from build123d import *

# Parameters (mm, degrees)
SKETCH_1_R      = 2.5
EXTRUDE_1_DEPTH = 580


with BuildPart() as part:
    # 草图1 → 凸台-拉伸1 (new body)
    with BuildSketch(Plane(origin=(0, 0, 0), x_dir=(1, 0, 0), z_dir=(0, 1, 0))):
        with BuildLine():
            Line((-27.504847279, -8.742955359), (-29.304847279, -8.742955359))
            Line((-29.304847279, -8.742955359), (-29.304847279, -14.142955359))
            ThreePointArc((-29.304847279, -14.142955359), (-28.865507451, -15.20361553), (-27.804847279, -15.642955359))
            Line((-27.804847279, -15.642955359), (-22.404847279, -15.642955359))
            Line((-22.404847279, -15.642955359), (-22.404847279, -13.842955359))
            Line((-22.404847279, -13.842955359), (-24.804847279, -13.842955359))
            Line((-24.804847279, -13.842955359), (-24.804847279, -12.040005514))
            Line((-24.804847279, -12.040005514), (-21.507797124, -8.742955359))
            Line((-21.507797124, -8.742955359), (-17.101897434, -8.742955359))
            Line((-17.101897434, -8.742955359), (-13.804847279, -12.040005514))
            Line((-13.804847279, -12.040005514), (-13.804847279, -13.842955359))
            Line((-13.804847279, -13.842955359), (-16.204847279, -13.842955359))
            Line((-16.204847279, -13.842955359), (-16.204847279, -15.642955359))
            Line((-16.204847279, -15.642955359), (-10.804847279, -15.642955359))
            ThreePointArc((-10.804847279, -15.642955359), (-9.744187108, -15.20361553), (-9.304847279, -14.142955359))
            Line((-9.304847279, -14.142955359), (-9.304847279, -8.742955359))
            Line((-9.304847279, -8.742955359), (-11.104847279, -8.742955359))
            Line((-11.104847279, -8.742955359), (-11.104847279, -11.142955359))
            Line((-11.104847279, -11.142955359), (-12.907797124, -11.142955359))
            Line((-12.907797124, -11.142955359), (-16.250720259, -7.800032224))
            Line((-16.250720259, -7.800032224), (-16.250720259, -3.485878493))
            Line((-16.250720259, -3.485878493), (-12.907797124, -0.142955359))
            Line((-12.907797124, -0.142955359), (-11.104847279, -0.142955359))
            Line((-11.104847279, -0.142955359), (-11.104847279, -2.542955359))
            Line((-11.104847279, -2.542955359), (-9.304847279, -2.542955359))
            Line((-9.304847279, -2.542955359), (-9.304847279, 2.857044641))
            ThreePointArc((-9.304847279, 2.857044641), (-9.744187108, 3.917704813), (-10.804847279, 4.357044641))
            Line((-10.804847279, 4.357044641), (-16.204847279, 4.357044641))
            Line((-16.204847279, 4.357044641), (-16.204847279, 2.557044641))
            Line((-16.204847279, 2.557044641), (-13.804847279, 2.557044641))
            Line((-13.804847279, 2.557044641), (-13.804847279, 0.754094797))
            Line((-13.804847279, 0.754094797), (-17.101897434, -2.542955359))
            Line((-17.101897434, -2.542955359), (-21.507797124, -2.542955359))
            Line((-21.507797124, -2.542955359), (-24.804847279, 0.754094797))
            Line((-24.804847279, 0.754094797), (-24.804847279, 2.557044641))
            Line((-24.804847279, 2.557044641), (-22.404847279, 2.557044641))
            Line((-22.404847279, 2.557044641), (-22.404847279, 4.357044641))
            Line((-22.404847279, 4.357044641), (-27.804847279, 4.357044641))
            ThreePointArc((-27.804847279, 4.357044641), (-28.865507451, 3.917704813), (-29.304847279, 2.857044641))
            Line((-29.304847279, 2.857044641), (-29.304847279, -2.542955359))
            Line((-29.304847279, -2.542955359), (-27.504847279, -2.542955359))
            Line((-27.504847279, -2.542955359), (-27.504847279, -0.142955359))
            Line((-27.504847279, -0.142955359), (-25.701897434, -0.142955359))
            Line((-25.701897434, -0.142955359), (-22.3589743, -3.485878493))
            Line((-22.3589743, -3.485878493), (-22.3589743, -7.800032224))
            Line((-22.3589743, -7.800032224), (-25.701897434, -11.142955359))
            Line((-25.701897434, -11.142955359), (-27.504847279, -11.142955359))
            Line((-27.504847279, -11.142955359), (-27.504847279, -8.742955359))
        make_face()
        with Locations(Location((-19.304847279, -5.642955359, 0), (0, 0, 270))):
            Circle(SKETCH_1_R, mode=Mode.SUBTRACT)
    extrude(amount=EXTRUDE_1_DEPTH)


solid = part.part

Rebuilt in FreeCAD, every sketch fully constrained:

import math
import FreeCAD as App
import Part
import Sketcher

V = App.Vector
Q = App.Units.Quantity

doc = App.newDocument("Part")
params = doc.addObject("Spreadsheet::Sheet", "Params")
for row, (alias, value) in enumerate([
    ("sketch1_diameter", "5 mm"),
    ("sketch1_radius", "1.5 mm"),
    ("sketch1_width", "1.8 mm"),
    ("sketch1_width2", "5.4 mm"),
    ("sketch1_width3", "2.4 mm"),
    ("pad1_length", "580 mm"),
], start=1):
    params.set(f"A{row}", alias)
    params.set(f"B{row}", "=" + value)
    params.setAlias(f"B{row}", alias)

body = doc.addObject("PartDesign::Body", "Body")

sketch1 = body.newObject("Sketcher::SketchObject", "Sketch")
sketch1.AttachmentSupport = (doc.getObject("XZ_Plane"), [""])
sketch1.MapMode = "FlatFace"
sketch1.addGeometry([
    Part.LineSegment(V(-27.5, 8.7, 0), V(-29.3, 8.7, 0)),
    Part.LineSegment(V(-29.3, 8.7, 0), V(-29.3, 14.1, 0)),
    Part.ArcOfCircle(Part.Circle(V(-27.8, 14.1, 0), V(0, 0, 1), 1.5), math.radians(90), math.radians(180)),
    Part.LineSegment(V(-27.8, 15.6, 0), V(-22.4, 15.6, 0)),
    Part.LineSegment(V(-22.4, 15.6, 0), V(-22.4, 13.8, 0)),
    Part.LineSegment(V(-22.4, 13.8, 0), V(-24.8, 13.8, 0)),
    Part.LineSegment(V(-24.8, 13.8, 0), V(-24.8, 12, 0)),
    Part.LineSegment(V(-24.8, 12, 0), V(-21.5, 8.7, 0)),
    Part.LineSegment(V(-21.5, 8.7, 0), V(-17.1, 8.7, 0)),
    Part.LineSegment(V(-17.1, 8.7, 0), V(-13.8, 12, 0)),
    Part.LineSegment(V(-13.8, 12, 0), V(-13.8, 13.8, 0)),
    Part.LineSegment(V(-13.8, 13.8, 0), V(-16.2, 13.8, 0)),
    Part.LineSegment(V(-16.2, 13.8, 0), V(-16.2, 15.6, 0)),
    Part.LineSegment(V(-16.2, 15.6, 0), V(-10.8, 15.6, 0)),
    Part.ArcOfCircle(Part.Circle(V(-10.8, 14.1, 0), V(0, 0, 1), 1.5), math.radians(0), math.radians(90)),
    Part.LineSegment(V(-9.3, 14.1, 0), V(-9.3, 8.7, 0)),
    Part.LineSegment(V(-9.3, 8.7, 0), V(-11.1, 8.7, 0)),
    Part.LineSegment(V(-11.1, 8.7, 0), V(-11.1, 11.1, 0)),
    Part.LineSegment(V(-11.1, 11.1, 0), V(-12.9, 11.1, 0)),
    Part.LineSegment(V(-12.9, 11.1, 0), V(-16.3, 7.8, 0)),
    Part.LineSegment(V(-16.3, 7.8, 0), V(-16.3, 3.5, 0)),
    Part.LineSegment(V(-16.3, 3.5, 0), V(-12.9, 0.1, 0)),
    Part.LineSegment(V(-12.9, 0.1, 0), V(-11.1, 0.1, 0)),
    Part.LineSegment(V(-11.1, 0.1, 0), V(-11.1, 2.5, 0)),
    Part.LineSegment(V(-11.1, 2.5, 0), V(-9.3, 2.5, 0)),
    Part.LineSegment(V(-9.3, 2.5, 0), V(-9.3, -2.9, 0)),
    Part.ArcOfCircle(Part.Circle(V(-10.8, -2.9, 0), V(0, 0, 1), 1.5), math.radians(-90), math.radians(0)),
    Part.LineSegment(V(-10.8, -4.4, 0), V(-16.2, -4.4, 0)),
    Part.LineSegment(V(-16.2, -4.4, 0), V(-16.2, -2.6, 0)),
    Part.LineSegment(V(-16.2, -2.6, 0), V(-13.8, -2.6, 0)),
    Part.LineSegment(V(-13.8, -2.6, 0), V(-13.8, -0.8, 0)),
    Part.LineSegment(V(-13.8, -0.8, 0), V(-17.1, 2.5, 0)),
    Part.LineSegment(V(-17.1, 2.5, 0), V(-21.5, 2.5, 0)),
    Part.LineSegment(V(-21.5, 2.5, 0), V(-24.8, -0.8, 0)),
    Part.LineSegment(V(-24.8, -0.8, 0), V(-24.8, -2.6, 0)),
    Part.LineSegment(V(-24.8, -2.6, 0), V(-22.4, -2.6, 0)),
    Part.LineSegment(V(-22.4, -2.6, 0), V(-22.4, -4.4, 0)),
    Part.LineSegment(V(-22.4, -4.4, 0), V(-27.8, -4.4, 0)),
    Part.ArcOfCircle(Part.Circle(V(-27.8, -2.9, 0), V(0, 0, 1), 1.5), math.radians(180), math.radians(270)),
    Part.LineSegment(V(-29.3, -2.9, 0), V(-29.3, 2.5, 0)),
    Part.LineSegment(V(-29.3, 2.5, 0), V(-27.5, 2.5, 0)),
    Part.LineSegment(V(-27.5, 2.5, 0), V(-27.5, 0.1, 0)),
    Part.LineSegment(V(-27.5, 0.1, 0), V(-25.7, 0.1, 0)),
    Part.LineSegment(V(-25.7, 0.1, 0), V(-22.4, 3.5, 0)),
    Part.LineSegment(V(-22.4, 3.5, 0), V(-22.4, 7.8, 0)),
    Part.LineSegment(V(-22.4, 7.8, 0), V(-25.7, 11.1, 0)),
    Part.LineSegment(V(-25.7, 11.1, 0), V(-27.5, 11.1, 0)),
    Part.LineSegment(V(-27.5, 11.1, 0), V(-27.5, 8.7, 0)),
    Part.Circle(V(-19.3, 5.6, 0), V(0, 0, 1), 2.5),
], False)
sketch1.addConstraint([
    Sketcher.Constraint("Coincident", 0, 2, 1, 1),
    Sketcher.Constraint("Tangent", 1, 2, 2, 2),
    Sketcher.Constraint("Tangent", 2, 1, 3, 1),
    Sketcher.Constraint("Coincident", 3, 2, 4, 1),
    Sketcher.Constraint("Coincident", 4, 2, 5, 1),
    Sketcher.Constraint("Coincident", 5, 2, 6, 1),
    Sketcher.Constraint("Coincident", 6, 2, 7, 1),
    Sketcher.Constraint("Coincident", 7, 2, 8, 1),
    Sketcher.Constraint("Coincident", 8, 2, 9, 1),
    Sketcher.Constraint("Coincident", 9, 2, 10, 1),
    Sketcher.Constraint("Coincident", 10, 2, 11, 1),
    Sketcher.Constraint("Coincident", 11, 2, 12, 1),
    Sketcher.Constraint("Coincident", 12, 2, 13, 1),
    Sketcher.Constraint("Tangent", 13, 2, 14, 2),
    Sketcher.Constraint("Tangent", 14, 1, 15, 1),
    Sketcher.Constraint("Coincident", 15, 2, 16, 1),
    Sketcher.Constraint("Coincident", 16, 2, 17, 1),
    Sketcher.Constraint("Coincident", 17, 2, 18, 1),
    Sketcher.Constraint("Coincident", 18, 2, 19, 1),
    Sketcher.Constraint("Coincident", 19, 2, 20, 1),
    Sketcher.Constraint("Coincident", 20, 2, 21, 1),
    Sketcher.Constraint("Coincident", 21, 2, 22, 1),
    Sketcher.Constraint("Coincident", 22, 2, 23, 1),
    Sketcher.Constraint("Coincident", 23, 2, 24, 1),
    Sketcher.Constraint("Coincident", 24, 2, 25, 1),
    Sketcher.Constraint("Tangent", 25, 2, 26, 2),
    Sketcher.Constraint("Tangent", 26, 1, 27, 1),
    Sketcher.Constraint("Coincident", 27, 2, 28, 1),
    Sketcher.Constraint("Coincident", 28, 2, 29, 1),
    Sketcher.Constraint("Coincident", 29, 2, 30, 1),
    Sketcher.Constraint("Coincident", 30, 2, 31, 1),
    Sketcher.Constraint("Coincident", 31, 2, 32, 1),
    Sketcher.Constraint("Coincident", 32, 2, 33, 1),
    Sketcher.Constraint("Coincident", 33, 2, 34, 1),
    Sketcher.Constraint("Coincident", 34, 2, 35, 1),
    Sketcher.Constraint("Coincident", 35, 2, 36, 1),
    Sketcher.Constraint("Coincident", 36, 2, 37, 1),
    Sketcher.Constraint("Tangent", 37, 2, 38, 2),
    Sketcher.Constraint("Tangent", 38, 1, 39, 1),
    Sketcher.Constraint("Coincident", 39, 2, 40, 1),
    Sketcher.Constraint("Coincident", 40, 2, 41, 1),
    Sketcher.Constraint("Coincident", 41, 2, 42, 1),
    Sketcher.Constraint("Coincident", 42, 2, 43, 1),
    Sketcher.Constraint("Coincident", 43, 2, 44, 1),
    Sketcher.Constraint("Coincident", 44, 2, 45, 1),
    Sketcher.Constraint("Coincident", 45, 2, 46, 1),
    Sketcher.Constraint("Coincident", 46, 2, 47, 1),
    Sketcher.Constraint("Coincident", 47, 2, 0, 1),
    Sketcher.Constraint("Horizontal", 0),
    Sketcher.Constraint("Vertical", 1),
    Sketcher.Constraint("Horizontal", 3),
    Sketcher.Constraint("Vertical", 4),
    Sketcher.Constraint("Horizontal", 5),
    Sketcher.Constraint("Vertical", 6),
    Sketcher.Constraint("Horizontal", 8),
    Sketcher.Constraint("Vertical", 10),
    Sketcher.Constraint("Horizontal", 11),
    Sketcher.Constraint("Vertical", 12),
    Sketcher.Constraint("Horizontal", 13),
    Sketcher.Constraint("Vertical", 15),
    Sketcher.Constraint("Horizontal", 16),
    Sketcher.Constraint("Vertical", 17),
    Sketcher.Constraint("Horizontal", 18),
    Sketcher.Constraint("Vertical", 20),
    Sketcher.Constraint("Horizontal", 22),
    Sketcher.Constraint("Vertical", 23),
    Sketcher.Constraint("Horizontal", 24),
    Sketcher.Constraint("Vertical", 25),
    Sketcher.Constraint("Horizontal", 27),
    Sketcher.Constraint("Vertical", 28),
    Sketcher.Constraint("Horizontal", 29),
    Sketcher.Constraint("Vertical", 30),
    Sketcher.Constraint("Horizontal", 32),
    Sketcher.Constraint("Vertical", 34),
    Sketcher.Constraint("Horizontal", 35),
    Sketcher.Constraint("Vertical", 36),
    Sketcher.Constraint("Horizontal", 37),
    Sketcher.Constraint("Vertical", 39),
    Sketcher.Constraint("Horizontal", 40),
    Sketcher.Constraint("Vertical", 41),
    Sketcher.Constraint("Horizontal", 42),
    Sketcher.Constraint("Vertical", 44),
    Sketcher.Constraint("Horizontal", 46),
    Sketcher.Constraint("Vertical", 47),
    Sketcher.Constraint("Equal", 2, 14),
    Sketcher.Constraint("Equal", 14, 26),
    Sketcher.Constraint("Equal", 26, 38),
    Sketcher.Constraint("Perpendicular", 7, 9),
    Sketcher.Constraint("Parallel", 9, 19),
    Sketcher.Constraint("Perpendicular", 19, 21),
    Sketcher.Constraint("Parallel", 21, 31),
    Sketcher.Constraint("Perpendicular", 31, 33),
    Sketcher.Constraint("Parallel", 33, 43),
    Sketcher.Constraint("Perpendicular", 43, 45),
    Sketcher.Constraint("Horizontal", 2, 3, 14, 3),
    Sketcher.Constraint("Horizontal", 26, 3, 38, 3),
    Sketcher.Constraint("Horizontal", 0, 2, 7, 2),
    Sketcher.Constraint("Horizontal", 6, 2, 9, 2),
    Sketcher.Constraint("Horizontal", 5, 2, 10, 2),
    Sketcher.Constraint("Horizontal", 8, 2, 15, 2),
    Sketcher.Constraint("Horizontal", 24, 2, 31, 2),
    Sketcher.Constraint("Horizontal", 30, 2, 33, 2),
    Sketcher.Constraint("Horizontal", 29, 2, 34, 2),
    Sketcher.Constraint("Horizontal", 32, 2, 39, 2),
    Sketcher.Constraint("Horizontal", 22, 2, 41, 2),
    Sketcher.Constraint("Horizontal", 20, 2, 43, 2),
    Sketcher.Constraint("Horizontal", 19, 2, 44, 2),
    Sketcher.Constraint("Horizontal", 18, 2, 45, 2),
    Sketcher.Constraint("Vertical", 14, 3, 26, 3),
    Sketcher.Constraint("Vertical", 2, 3, 38, 3),
    Sketcher.Constraint("Vertical", 18, 2, 21, 2),
    Sketcher.Constraint("Vertical", 17, 2, 22, 2),
    Sketcher.Constraint("Vertical", 12, 2, 27, 2),
    Sketcher.Constraint("Vertical", 10, 2, 29, 2),
    Sketcher.Constraint("Vertical", 8, 2, 31, 2),
    Sketcher.Constraint("Vertical", 7, 2, 32, 2),
    Sketcher.Constraint("Vertical", 6, 2, 33, 2),
    Sketcher.Constraint("Vertical", 4, 2, 35, 2),
    Sketcher.Constraint("Vertical", 41, 2, 46, 2),
    Sketcher.Constraint("Equal", 5, 11),
    Sketcher.Constraint("Equal", 3, 13),
    Sketcher.Constraint("Equal", 0, 16),
    Sketcher.Constraint("Equal", 22, 42),
    Sketcher.Constraint("Equal", 37, 1),
    Sketcher.Constraint("Equal", 40, 4),
    Sketcher.Constraint("Equal", 46, 6),
    Sketcher.Constraint("Equal", 35, 17),
    Sketcher.Constraint("Equal", 17, 23),
    Sketcher.Constraint("Equal", 15, 25),
    Sketcher.Constraint("Equal", 12, 28),
    Sketcher.Constraint("Diameter", 48, Q("5 mm")),
    Sketcher.Constraint("Radius", 2, Q("1.5 mm")),
    Sketcher.Constraint("DistanceX", 0, 2, 0, 1, Q("1.8 mm")),
    Sketcher.Constraint("DistanceX", 3, 1, 3, 2, Q("5.4 mm")),
    Sketcher.Constraint("DistanceX", 5, 2, 5, 1, Q("2.4 mm")),
    Sketcher.Constraint("DistanceX", 2, 3, 14, 3, Q("17 mm")),
    Sketcher.Constraint("DistanceY", 26, 3, 14, 3, Q("17 mm")),
    Sketcher.Constraint("DistanceX", 0, 2, 48, 3, Q("10 mm")),
    Sketcher.Constraint("DistanceY", 48, 3, 2, 1, Q("10 mm")),
    Sketcher.Constraint("DistanceX", 8, 1, 8, 2, Q("4.4059 mm")),
    Sketcher.Constraint("DistanceY", 20, 2, 20, 1, Q("4.314154 mm")),
    Sketcher.Constraint("DistanceX", 19, 2, -1, 1, Q("16.25072 mm")),
    Sketcher.Constraint("DistanceY", -1, 1, 20, 2, Q("3.485878 mm")),
])
sketch1.setExpression("Constraints[130]", "Params.sketch1_diameter")
sketch1.setExpression("Constraints[131]", "Params.sketch1_radius")
sketch1.setExpression("Constraints[132]", "Params.sketch1_width")
sketch1.setExpression("Constraints[133]", "Params.sketch1_width2")
sketch1.setExpression("Constraints[134]", "Params.sketch1_width3")
pad1 = body.newObject("PartDesign::Pad", "Pad")
pad1.Profile = sketch1
pad1.setExpression("Length", "Params.pad1_length")
pad1.Reversed = True

doc.recompute()
